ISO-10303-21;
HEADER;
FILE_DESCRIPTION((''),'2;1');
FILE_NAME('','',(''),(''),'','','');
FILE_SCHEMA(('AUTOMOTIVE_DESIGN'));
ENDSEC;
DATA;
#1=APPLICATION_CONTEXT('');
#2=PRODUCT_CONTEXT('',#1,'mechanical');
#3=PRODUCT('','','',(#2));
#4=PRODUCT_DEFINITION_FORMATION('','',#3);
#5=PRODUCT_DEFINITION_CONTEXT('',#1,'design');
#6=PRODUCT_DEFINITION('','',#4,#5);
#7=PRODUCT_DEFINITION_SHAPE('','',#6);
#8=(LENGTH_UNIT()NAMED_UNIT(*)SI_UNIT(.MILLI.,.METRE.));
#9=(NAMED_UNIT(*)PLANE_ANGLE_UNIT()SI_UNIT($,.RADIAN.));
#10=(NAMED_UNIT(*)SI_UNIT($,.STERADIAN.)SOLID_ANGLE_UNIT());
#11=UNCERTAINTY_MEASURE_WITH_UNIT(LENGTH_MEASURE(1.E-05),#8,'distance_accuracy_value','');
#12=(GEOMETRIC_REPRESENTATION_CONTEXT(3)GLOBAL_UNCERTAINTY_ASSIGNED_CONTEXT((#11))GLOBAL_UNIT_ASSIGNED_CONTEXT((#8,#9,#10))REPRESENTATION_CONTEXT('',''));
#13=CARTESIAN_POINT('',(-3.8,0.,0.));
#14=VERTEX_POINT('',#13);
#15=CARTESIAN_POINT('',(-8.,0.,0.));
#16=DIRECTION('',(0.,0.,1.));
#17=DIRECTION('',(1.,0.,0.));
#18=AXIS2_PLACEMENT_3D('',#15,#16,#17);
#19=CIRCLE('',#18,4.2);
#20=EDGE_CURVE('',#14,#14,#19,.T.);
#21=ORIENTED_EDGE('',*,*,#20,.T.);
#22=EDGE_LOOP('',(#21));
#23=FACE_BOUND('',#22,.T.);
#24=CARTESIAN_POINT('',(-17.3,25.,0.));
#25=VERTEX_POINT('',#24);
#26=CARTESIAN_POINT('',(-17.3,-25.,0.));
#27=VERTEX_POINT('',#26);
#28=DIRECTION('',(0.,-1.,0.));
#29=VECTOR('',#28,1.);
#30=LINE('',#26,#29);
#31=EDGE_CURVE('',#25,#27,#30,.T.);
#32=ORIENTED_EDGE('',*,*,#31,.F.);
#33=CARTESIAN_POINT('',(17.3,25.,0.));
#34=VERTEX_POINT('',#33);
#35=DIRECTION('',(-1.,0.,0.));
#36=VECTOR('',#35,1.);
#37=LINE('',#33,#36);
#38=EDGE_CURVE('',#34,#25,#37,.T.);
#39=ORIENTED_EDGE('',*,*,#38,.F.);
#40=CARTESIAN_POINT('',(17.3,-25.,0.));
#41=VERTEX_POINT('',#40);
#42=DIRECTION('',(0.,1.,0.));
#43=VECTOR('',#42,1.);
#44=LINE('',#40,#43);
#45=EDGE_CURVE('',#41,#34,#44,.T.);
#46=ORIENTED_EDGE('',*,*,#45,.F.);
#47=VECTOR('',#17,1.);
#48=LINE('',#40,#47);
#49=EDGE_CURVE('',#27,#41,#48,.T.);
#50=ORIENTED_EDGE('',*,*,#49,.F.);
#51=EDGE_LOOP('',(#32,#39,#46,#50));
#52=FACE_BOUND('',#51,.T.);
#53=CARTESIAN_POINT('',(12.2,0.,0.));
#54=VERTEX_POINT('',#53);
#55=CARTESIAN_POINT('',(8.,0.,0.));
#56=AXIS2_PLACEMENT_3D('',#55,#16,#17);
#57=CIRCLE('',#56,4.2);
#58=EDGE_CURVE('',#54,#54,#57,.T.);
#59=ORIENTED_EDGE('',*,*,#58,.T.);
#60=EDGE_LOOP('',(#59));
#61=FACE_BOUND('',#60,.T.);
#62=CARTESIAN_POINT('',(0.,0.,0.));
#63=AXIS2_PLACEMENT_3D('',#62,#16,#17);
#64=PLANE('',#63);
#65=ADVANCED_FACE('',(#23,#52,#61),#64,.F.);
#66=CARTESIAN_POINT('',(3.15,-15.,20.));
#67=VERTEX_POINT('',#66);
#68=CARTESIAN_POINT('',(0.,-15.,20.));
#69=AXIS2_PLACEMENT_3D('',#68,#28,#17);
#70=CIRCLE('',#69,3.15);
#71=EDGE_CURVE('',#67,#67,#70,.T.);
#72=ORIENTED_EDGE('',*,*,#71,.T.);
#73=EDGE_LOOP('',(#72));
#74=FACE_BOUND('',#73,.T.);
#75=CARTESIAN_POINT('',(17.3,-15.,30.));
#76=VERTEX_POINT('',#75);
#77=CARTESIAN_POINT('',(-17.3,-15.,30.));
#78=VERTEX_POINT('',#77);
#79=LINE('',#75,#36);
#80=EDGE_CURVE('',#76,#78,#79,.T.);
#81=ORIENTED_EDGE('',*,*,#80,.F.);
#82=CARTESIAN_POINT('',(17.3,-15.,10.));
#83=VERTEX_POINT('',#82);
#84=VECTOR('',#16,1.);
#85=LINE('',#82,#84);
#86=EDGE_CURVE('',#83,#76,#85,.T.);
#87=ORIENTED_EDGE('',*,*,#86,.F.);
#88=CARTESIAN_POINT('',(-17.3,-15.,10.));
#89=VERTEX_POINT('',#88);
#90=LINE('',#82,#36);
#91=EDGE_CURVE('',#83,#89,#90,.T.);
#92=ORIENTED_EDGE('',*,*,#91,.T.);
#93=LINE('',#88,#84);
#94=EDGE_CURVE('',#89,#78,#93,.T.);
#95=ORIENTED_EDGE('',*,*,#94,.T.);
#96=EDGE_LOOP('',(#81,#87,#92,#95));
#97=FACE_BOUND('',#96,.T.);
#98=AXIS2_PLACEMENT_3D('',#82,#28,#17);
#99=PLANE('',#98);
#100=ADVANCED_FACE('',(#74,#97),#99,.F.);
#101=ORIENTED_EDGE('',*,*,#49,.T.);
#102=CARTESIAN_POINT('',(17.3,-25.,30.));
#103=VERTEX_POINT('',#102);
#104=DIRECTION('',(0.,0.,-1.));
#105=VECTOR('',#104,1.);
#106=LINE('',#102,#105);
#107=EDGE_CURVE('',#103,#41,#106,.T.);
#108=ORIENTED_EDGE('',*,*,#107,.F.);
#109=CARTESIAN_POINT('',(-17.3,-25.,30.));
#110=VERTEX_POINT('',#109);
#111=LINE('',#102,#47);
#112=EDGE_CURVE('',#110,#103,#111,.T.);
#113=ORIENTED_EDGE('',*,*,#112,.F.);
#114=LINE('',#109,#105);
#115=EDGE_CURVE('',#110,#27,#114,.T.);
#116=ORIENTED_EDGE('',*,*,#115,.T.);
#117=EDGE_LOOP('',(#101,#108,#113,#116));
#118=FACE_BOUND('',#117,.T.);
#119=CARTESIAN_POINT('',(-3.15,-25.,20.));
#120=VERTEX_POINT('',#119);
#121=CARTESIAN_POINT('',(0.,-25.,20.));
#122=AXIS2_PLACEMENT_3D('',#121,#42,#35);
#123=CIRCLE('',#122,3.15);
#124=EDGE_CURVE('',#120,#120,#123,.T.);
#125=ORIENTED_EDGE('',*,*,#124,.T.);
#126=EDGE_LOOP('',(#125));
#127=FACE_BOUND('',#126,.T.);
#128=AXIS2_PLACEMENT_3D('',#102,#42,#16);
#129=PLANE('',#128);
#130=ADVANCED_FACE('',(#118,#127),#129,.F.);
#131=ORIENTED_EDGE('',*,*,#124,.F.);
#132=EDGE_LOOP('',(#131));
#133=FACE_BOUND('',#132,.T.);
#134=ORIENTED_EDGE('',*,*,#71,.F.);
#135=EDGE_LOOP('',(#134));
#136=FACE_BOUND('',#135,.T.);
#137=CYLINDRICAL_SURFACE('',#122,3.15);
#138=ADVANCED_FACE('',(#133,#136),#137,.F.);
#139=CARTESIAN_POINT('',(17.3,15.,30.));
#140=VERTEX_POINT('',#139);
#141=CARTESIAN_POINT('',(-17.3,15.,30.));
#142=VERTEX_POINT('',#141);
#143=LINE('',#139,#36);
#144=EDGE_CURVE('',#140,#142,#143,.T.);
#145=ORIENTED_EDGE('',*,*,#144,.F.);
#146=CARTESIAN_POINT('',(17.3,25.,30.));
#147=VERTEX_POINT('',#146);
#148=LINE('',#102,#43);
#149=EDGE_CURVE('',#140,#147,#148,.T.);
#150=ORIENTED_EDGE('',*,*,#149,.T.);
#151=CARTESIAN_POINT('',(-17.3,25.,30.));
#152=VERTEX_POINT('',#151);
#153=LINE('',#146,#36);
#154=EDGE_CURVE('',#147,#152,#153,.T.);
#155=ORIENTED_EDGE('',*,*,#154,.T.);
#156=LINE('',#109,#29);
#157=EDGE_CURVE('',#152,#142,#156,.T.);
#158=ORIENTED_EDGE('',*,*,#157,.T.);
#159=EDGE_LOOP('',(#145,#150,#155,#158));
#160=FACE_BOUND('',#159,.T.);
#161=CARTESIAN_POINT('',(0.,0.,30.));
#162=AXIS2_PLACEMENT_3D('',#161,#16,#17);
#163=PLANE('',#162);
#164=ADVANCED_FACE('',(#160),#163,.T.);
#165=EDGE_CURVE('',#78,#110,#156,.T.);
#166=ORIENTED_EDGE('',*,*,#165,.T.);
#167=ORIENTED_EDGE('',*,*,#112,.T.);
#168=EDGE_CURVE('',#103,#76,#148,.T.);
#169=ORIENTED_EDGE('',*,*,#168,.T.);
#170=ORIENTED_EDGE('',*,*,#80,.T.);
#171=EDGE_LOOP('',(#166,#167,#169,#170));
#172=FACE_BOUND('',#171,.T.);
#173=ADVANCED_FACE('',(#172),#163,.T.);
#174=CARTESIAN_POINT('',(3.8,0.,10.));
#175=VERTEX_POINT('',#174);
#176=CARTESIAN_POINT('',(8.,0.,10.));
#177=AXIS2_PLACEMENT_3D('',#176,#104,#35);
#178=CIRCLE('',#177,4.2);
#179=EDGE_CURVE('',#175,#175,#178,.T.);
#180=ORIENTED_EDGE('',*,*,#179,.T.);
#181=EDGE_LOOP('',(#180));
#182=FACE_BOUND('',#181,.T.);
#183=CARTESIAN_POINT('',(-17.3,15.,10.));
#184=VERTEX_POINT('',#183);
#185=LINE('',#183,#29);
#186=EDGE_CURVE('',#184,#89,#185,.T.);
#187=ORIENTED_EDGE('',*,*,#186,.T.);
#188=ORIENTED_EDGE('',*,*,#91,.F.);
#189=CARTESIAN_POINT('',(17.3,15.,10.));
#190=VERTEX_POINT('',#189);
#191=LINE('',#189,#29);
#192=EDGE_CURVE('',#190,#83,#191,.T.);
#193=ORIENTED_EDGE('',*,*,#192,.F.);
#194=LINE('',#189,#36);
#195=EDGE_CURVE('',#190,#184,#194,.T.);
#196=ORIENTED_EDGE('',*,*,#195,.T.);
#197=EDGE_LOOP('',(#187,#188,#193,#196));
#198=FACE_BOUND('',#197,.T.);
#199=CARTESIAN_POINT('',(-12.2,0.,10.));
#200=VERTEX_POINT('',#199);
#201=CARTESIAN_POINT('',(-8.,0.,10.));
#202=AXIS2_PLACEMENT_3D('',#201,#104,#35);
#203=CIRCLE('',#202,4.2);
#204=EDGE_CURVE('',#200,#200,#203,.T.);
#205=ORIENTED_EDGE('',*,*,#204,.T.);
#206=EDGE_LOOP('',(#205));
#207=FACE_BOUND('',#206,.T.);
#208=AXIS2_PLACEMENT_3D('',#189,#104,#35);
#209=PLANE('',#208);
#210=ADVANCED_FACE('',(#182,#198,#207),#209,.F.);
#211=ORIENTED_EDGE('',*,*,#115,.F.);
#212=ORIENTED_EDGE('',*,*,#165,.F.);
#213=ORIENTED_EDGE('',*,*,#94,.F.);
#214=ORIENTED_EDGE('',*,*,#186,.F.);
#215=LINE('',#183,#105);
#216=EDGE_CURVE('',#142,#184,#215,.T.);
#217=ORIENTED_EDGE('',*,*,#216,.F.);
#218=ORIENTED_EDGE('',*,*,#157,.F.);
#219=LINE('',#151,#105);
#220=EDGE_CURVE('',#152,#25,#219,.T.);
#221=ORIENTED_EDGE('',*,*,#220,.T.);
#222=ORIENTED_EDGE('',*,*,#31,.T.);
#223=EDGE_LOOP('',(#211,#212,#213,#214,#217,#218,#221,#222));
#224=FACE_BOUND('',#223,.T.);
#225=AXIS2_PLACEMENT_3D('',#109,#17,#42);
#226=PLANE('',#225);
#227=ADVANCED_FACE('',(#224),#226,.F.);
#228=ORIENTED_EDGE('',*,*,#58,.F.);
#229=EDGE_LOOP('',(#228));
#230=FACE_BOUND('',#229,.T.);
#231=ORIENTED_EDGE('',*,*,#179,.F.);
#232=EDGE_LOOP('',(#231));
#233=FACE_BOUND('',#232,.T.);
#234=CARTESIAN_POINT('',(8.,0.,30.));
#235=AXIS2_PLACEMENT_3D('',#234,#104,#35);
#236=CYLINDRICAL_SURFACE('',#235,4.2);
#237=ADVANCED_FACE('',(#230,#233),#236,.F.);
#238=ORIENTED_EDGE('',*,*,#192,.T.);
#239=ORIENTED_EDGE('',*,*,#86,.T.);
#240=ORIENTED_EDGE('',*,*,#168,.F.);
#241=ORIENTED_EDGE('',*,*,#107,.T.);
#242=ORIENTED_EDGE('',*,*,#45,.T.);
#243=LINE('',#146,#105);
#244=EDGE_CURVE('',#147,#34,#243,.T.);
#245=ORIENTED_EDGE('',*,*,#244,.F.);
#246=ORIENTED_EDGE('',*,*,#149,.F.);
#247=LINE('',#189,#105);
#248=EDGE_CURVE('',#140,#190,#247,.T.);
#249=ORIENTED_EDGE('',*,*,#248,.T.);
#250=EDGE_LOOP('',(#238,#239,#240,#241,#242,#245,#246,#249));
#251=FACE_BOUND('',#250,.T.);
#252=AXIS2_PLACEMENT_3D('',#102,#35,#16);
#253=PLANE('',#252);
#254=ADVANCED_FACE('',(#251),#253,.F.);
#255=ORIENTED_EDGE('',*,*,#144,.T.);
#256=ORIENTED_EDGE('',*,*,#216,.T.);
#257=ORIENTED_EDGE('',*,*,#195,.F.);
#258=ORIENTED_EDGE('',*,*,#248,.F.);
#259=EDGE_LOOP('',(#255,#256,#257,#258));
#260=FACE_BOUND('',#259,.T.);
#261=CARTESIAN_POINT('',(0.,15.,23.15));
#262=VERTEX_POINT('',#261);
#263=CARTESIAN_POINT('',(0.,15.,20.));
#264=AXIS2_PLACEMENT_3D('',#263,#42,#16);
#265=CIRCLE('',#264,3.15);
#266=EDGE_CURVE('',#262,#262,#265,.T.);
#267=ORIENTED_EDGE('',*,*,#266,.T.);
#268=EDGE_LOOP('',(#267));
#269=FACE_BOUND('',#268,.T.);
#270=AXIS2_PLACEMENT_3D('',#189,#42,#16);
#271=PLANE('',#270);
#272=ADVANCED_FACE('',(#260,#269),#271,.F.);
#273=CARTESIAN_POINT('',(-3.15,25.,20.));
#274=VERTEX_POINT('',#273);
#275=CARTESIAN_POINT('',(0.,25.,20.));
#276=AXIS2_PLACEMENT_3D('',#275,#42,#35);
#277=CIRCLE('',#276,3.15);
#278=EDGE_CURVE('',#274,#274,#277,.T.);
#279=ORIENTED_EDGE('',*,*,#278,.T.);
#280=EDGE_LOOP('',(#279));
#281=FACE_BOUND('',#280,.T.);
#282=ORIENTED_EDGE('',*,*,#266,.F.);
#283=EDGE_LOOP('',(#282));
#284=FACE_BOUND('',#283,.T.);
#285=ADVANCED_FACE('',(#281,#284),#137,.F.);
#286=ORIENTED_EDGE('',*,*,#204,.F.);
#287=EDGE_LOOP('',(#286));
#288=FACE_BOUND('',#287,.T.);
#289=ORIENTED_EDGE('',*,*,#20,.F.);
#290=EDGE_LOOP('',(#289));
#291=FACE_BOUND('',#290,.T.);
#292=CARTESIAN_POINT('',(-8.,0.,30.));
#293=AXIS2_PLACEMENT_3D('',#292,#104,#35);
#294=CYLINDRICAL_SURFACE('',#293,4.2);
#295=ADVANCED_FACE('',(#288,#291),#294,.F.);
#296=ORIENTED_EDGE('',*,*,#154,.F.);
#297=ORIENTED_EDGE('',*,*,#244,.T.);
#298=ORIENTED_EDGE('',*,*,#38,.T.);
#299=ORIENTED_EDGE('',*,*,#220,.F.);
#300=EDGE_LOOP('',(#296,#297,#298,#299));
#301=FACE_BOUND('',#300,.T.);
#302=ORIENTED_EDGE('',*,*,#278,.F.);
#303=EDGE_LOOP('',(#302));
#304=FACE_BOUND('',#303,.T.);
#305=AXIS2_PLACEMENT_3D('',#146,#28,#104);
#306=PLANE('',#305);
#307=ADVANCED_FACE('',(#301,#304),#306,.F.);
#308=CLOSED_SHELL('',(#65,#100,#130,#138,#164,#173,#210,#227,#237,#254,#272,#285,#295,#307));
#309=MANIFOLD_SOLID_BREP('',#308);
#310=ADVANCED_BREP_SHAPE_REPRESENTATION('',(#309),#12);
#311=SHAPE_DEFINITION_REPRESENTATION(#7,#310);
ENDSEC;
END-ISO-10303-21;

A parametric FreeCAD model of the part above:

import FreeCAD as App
import Part
import Sketcher
Q = App.Units.Quantity

doc = App.newDocument("Part")
body = doc.addObject("PartDesign::Body", "Body")

# Sketch on XY plane
sketch1 = body.newObject("Sketcher::SketchObject", "Sketch")
sketch1.AttachmentSupport = (doc.getObject("XY_Plane"), [""])
sketch1.MapMode = "FlatFace"
sketch1.addGeometry([
    Part.LineSegment(App.Vector(-17.3, 25, 0), App.Vector(-17.3, -25, 0)),  # 0
    Part.LineSegment(App.Vector(-17.3, -25, 0), App.Vector(17.3, -25, 0)),  # 1
    Part.LineSegment(App.Vector(17.3, -25, 0), App.Vector(17.3, 25, 0)),  # 2
    Part.LineSegment(App.Vector(17.3, 25, 0), App.Vector(-17.3, 25, 0)),  # 3
    Part.Circle(App.Vector(-8, 0, 0), App.Vector(0, 0, 1), 4.2),  # 4
    Part.Circle(App.Vector(8, 0, 0), App.Vector(0, 0, 1), 4.2),  # 5
], False)
sketch1.addConstraint([
    Sketcher.Constraint("Coincident", 0, 2, 1, 1),
    Sketcher.Constraint("Coincident", 1, 2, 2, 1),
    Sketcher.Constraint("Coincident", 2, 2, 3, 1),
    Sketcher.Constraint("Coincident", 3, 2, 0, 1),
    Sketcher.Constraint("Vertical", 0),
    Sketcher.Constraint("Horizontal", 1),
    Sketcher.Constraint("Vertical", 2),
    Sketcher.Constraint("Horizontal", 3),
    Sketcher.Constraint("Equal", 4, 5),
    Sketcher.Constraint("Symmetric", 4, 3, 5, 3, -1, 1),
    Sketcher.Constraint("Symmetric", 0, 2, 2, 2, -1, 1),
    Sketcher.Constraint("PointOnObject", 4, 3, -1),
    Sketcher.Constraint("Diameter", 4, Q("8.4 mm")),
    Sketcher.Constraint("DistanceY", 0, 2, 0, 1, Q("50 mm")),
    Sketcher.Constraint("DistanceX", 1, 1, 1, 2, Q("34.6 mm")),
    Sketcher.Constraint("DistanceX", 4, 3, -1, 1, Q("8 mm")),
])
pad1 = body.newObject("PartDesign::Pad", "Pad")
pad1.Profile = sketch1
pad1.Length = 30

# Sketch on YZ plane
sketch2 = body.newObject("Sketcher::SketchObject", "Sketch001")
sketch2.AttachmentSupport = (doc.getObject("YZ_Plane"), [""])
sketch2.MapMode = "FlatFace"
sketch2.AttachmentOffset = App.Placement(App.Vector(0, 0, -17.3), App.Rotation())
sketch2.addGeometry([
    Part.LineSegment(App.Vector(15, 10, 0), App.Vector(-15, 10, 0)),
    Part.LineSegment(App.Vector(-15, 10, 0), App.Vector(-15, 30, 0)),
    Part.LineSegment(App.Vector(-15, 30, 0), App.Vector(15, 30, 0)),
    Part.LineSegment(App.Vector(15, 30, 0), App.Vector(15, 10, 0)),
], False)
sketch2.addConstraint([
    Sketcher.Constraint("Coincident", 0, 2, 1, 1),
    Sketcher.Constraint("Coincident", 1, 2, 2, 1),
    Sketcher.Constraint("Coincident", 2, 2, 3, 1),
    Sketcher.Constraint("Coincident", 3, 2, 0, 1),
    Sketcher.Constraint("Horizontal", 0),
    Sketcher.Constraint("Vertical", 1),
    Sketcher.Constraint("Horizontal", 2),
    Sketcher.Constraint("Vertical", 3),
    Sketcher.Constraint("DistanceX", 0, 2, 0, 1, Q("30 mm")),
    Sketcher.Constraint("DistanceY", 1, 1, 1, 2, Q("20 mm")),
    Sketcher.Constraint("DistanceX", 0, 2, -1, 1, Q("15 mm")),
    Sketcher.Constraint("DistanceY", -1, 1, 0, 2, Q("10 mm")),
])
pocket1 = body.newObject("PartDesign::Pocket", "Pocket")
pocket1.Profile = sketch2
pocket1.Type = "ThroughAll"
pocket1.Reversed = True

# Sketch on XZ plane
sketch3 = body.newObject("Sketcher::SketchObject", "Sketch002")
sketch3.AttachmentSupport = (doc.getObject("XZ_Plane"), [""])
sketch3.MapMode = "FlatFace"
sketch3.AttachmentOffset = App.Placement(App.Vector(0, 0, -25), App.Rotation())
sketch3.addGeometry(Part.Circle(App.Vector(0, 20, 0), App.Vector(0, 0, 1), 3.1), False)
sketch3.addConstraint([
    Sketcher.Constraint("PointOnObject", 0, 3, -2),
    Sketcher.Constraint("Diameter", 0, Q("6.3 mm")),
    Sketcher.Constraint("DistanceY", -1, 1, 0, 3, Q("20 mm")),
])
pocket2 = body.newObject("PartDesign::Pocket", "Pocket001")
pocket2.Profile = sketch3
pocket2.Type = "ThroughAll"
pocket2.Reversed = True

doc.recompute()
